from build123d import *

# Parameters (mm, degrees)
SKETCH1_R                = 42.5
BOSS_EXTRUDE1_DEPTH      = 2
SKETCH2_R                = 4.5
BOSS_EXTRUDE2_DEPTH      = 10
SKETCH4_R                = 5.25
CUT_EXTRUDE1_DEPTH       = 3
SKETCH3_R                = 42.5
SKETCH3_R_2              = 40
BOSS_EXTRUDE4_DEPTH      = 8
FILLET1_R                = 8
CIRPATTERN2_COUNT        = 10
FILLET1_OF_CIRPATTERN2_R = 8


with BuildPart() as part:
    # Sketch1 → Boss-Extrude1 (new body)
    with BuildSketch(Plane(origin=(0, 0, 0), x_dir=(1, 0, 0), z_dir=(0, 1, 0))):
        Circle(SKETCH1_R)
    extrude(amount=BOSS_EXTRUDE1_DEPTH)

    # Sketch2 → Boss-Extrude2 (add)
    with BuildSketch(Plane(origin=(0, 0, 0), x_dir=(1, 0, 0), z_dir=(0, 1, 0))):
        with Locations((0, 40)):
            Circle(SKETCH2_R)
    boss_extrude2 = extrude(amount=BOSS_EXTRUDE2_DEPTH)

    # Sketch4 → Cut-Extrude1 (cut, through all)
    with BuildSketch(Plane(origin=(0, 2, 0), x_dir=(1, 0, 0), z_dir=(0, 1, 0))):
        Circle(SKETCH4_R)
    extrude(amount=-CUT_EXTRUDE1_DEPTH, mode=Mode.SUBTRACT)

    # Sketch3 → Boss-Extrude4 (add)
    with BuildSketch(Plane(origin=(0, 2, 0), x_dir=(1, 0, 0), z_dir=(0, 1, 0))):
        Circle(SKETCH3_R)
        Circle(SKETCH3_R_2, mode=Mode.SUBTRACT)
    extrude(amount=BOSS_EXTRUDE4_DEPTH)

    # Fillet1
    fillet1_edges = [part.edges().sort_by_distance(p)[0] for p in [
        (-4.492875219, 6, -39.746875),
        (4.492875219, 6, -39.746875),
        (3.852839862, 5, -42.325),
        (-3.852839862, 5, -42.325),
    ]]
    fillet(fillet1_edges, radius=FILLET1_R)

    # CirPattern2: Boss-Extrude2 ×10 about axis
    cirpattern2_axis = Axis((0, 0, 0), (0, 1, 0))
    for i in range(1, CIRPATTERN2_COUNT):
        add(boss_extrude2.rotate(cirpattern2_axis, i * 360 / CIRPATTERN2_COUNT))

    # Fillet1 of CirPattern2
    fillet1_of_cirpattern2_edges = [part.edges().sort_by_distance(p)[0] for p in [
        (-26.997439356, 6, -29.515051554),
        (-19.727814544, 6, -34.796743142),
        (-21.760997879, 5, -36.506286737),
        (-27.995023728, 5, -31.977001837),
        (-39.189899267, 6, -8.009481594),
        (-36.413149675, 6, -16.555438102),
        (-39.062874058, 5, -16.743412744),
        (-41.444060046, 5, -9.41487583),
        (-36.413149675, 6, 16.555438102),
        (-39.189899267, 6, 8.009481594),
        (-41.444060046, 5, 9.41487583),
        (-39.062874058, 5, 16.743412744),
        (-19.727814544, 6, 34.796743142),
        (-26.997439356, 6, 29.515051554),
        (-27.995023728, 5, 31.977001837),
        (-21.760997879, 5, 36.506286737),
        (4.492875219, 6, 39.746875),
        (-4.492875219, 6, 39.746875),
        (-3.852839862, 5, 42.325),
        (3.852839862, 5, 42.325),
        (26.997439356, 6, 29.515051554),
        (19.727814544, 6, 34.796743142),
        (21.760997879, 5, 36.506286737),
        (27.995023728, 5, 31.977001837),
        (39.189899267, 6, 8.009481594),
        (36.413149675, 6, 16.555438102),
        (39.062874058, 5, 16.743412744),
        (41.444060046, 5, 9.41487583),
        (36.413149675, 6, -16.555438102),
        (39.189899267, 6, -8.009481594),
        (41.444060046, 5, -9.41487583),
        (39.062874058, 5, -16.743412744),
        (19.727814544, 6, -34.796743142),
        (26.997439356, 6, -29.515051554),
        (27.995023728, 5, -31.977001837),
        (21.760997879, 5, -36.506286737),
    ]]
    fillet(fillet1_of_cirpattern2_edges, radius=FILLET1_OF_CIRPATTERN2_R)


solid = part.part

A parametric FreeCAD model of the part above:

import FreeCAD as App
import Part
import Sketcher
from FreeCAD import Vector
Q = App.Units.Quantity


def edges_at(feature, points):
    """Names of the edges that pass closest to the given points."""
    edges = feature.Shape.Edges
    near = lambda p: min(range(len(edges)), key=lambda i: edges[i].distToShape(Part.Vertex(*p))[0])
    return sorted({f"Edge{near(p) + 1}" for p in points})

doc = App.newDocument("Part")
body = doc.addObject("PartDesign::Body", "Body")

sketch1 = body.newObject("Sketcher::SketchObject", "Sketch")
sketch1.AttachmentSupport = (doc.getObject("XZ_Plane"), [""])
sketch1.MapMode = "FlatFace"
sketch1.addGeometry(Part.Circle(Vector(0, 0, 0), Vector(0, 0, 1), 42), False)
sketch1.addConstraint([
    Sketcher.Constraint("Coincident", 0, 3, -1, 1),
    Sketcher.Constraint("Diameter", 0, Q("85 mm")),
])
pad1 = body.newObject("PartDesign::Pad", "Pad")
pad1.Profile = sketch1
pad1.Length = 2
pad1.Reversed = True

sketch2 = body.newObject("Sketcher::SketchObject", "Sketch001")
sketch2.AttachmentSupport = (doc.getObject("XZ_Plane"), [""])
sketch2.MapMode = "FlatFace"
sketch2.addGeometry(Part.Circle(Vector(0, -40, 0), Vector(0, 0, 1), 4.5), False)
sketch2.addConstraint([
    Sketcher.Constraint("PointOnObject", 0, 3, -2),
    Sketcher.Constraint("Diameter", 0, Q("9 mm")),
    Sketcher.Constraint("DistanceY", 0, 3, -1, 1, Q("40 mm")),
])
pad2 = body.newObject("PartDesign::Pad", "Pad001")
pad2.Profile = sketch2
pad2.Length = 10
pad2.Reversed = True

sketch3 = body.newObject("Sketcher::SketchObject", "Sketch002")
sketch3.AttachmentSupport = (doc.getObject("XZ_Plane"), [""])
sketch3.MapMode = "FlatFace"
sketch3.AttachmentOffset = App.Placement(Vector(0, 0, -2), App.Rotation())
sketch3.addGeometry(Part.Circle(Vector(0, 0, 0), Vector(0, 0, 1), 5), False)
sketch3.addConstraint([
    Sketcher.Constraint("Coincident", 0, 3, -1, 1),
    Sketcher.Constraint("Diameter", 0, Q("10.5 mm")),
])
pocket1 = body.newObject("PartDesign::Pocket", "Pocket")
pocket1.Profile = sketch3
pocket1.Type = "ThroughAll"
pocket1.Reversed = True

sketch4 = body.newObject("Sketcher::SketchObject", "Sketch003")
sketch4.AttachmentSupport = (doc.getObject("XZ_Plane"), [""])
sketch4.MapMode = "FlatFace"
sketch4.AttachmentOffset = App.Placement(Vector(0, 0, -2), App.Rotation())
sketch4.addGeometry([
    Part.Circle(Vector(0, 0, 0), Vector(0, 0, 1), 42),
    Part.Circle(Vector(0, 0, 0), Vector(0, 0, 1), 40),
], False)
sketch4.addConstraint([
    Sketcher.Constraint("Coincident", 0, 3, -1, 1),
    Sketcher.Constraint("Coincident", 1, 3, -1, 1),
    Sketcher.Constraint("Diameter", 0, Q("85 mm")),
    Sketcher.Constraint("Diameter", 1, Q("80 mm")),
])
pad3 = body.newObject("PartDesign::Pad", "Pad002")
pad3.Profile = sketch4
pad3.Length = 8
pad3.Reversed = True
doc.recompute()

fillet = body.newObject("PartDesign::Fillet", "Fillet")
fillet.Base = (pad3, edges_at(pad3, [
    (-4.493, 6, -39.747),
    (4.493, 6, -39.747),
    (3.853, 5, -42.325),
    (-3.853, 5, -42.325),
]))
fillet.Radius = 8
doc.recompute()

polarpattern = body.newObject("PartDesign::PolarPattern", "PolarPattern")
polarpattern.Originals = [pad2]
polarpattern.Axis = (doc.getObject("Y_Axis"), [""])
polarpattern.Angle = 360
polarpattern.Occurrences = 10
body.Tip = polarpattern
doc.recompute()

fillet2 = body.newObject("PartDesign::Fillet", "Fillet001")
fillet2.Base = (polarpattern, edges_at(polarpattern, [
    (-26.997, 6, -29.515),
    (-19.728, 6, -34.797),
    (-21.761, 5, -36.506),
    (-27.995, 5, -31.977),
    (-39.19, 6, -8.009),
    (-36.413, 6, -16.555),
    (-39.063, 5, -16.743),
    (-41.444, 5, -9.415),
    (-36.413, 6, 16.555),
    (-39.19, 6, 8.009),
    (-41.444, 5, 9.415),
    (-39.063, 5, 16.743),
    (-19.728, 6, 34.797),
    (-26.997, 6, 29.515),
    (-27.995, 5, 31.977),
    (-21.761, 5, 36.506),
    (4.493, 6, 39.747),
    (-4.493, 6, 39.747),
    (-3.853, 5, 42.325),
    (3.853, 5, 42.325),
    (26.997, 6, 29.515),
    (19.728, 6, 34.797),
    (21.761, 5, 36.506),
    (27.995, 5, 31.977),
    (39.19, 6, 8.009),
    (36.413, 6, 16.555),
    (39.063, 5, 16.743),
    (41.444, 5, 9.415),
    (36.413, 6, -16.555),
    (39.19, 6, -8.009),
    (41.444, 5, -9.415),
    (39.063, 5, -16.743),
    (19.728, 6, -34.797),
    (26.997, 6, -29.515),
    (27.995, 5, -31.977),
    (21.761, 5, -36.506),
]))
fillet2.Radius = 8

doc.recompute()
